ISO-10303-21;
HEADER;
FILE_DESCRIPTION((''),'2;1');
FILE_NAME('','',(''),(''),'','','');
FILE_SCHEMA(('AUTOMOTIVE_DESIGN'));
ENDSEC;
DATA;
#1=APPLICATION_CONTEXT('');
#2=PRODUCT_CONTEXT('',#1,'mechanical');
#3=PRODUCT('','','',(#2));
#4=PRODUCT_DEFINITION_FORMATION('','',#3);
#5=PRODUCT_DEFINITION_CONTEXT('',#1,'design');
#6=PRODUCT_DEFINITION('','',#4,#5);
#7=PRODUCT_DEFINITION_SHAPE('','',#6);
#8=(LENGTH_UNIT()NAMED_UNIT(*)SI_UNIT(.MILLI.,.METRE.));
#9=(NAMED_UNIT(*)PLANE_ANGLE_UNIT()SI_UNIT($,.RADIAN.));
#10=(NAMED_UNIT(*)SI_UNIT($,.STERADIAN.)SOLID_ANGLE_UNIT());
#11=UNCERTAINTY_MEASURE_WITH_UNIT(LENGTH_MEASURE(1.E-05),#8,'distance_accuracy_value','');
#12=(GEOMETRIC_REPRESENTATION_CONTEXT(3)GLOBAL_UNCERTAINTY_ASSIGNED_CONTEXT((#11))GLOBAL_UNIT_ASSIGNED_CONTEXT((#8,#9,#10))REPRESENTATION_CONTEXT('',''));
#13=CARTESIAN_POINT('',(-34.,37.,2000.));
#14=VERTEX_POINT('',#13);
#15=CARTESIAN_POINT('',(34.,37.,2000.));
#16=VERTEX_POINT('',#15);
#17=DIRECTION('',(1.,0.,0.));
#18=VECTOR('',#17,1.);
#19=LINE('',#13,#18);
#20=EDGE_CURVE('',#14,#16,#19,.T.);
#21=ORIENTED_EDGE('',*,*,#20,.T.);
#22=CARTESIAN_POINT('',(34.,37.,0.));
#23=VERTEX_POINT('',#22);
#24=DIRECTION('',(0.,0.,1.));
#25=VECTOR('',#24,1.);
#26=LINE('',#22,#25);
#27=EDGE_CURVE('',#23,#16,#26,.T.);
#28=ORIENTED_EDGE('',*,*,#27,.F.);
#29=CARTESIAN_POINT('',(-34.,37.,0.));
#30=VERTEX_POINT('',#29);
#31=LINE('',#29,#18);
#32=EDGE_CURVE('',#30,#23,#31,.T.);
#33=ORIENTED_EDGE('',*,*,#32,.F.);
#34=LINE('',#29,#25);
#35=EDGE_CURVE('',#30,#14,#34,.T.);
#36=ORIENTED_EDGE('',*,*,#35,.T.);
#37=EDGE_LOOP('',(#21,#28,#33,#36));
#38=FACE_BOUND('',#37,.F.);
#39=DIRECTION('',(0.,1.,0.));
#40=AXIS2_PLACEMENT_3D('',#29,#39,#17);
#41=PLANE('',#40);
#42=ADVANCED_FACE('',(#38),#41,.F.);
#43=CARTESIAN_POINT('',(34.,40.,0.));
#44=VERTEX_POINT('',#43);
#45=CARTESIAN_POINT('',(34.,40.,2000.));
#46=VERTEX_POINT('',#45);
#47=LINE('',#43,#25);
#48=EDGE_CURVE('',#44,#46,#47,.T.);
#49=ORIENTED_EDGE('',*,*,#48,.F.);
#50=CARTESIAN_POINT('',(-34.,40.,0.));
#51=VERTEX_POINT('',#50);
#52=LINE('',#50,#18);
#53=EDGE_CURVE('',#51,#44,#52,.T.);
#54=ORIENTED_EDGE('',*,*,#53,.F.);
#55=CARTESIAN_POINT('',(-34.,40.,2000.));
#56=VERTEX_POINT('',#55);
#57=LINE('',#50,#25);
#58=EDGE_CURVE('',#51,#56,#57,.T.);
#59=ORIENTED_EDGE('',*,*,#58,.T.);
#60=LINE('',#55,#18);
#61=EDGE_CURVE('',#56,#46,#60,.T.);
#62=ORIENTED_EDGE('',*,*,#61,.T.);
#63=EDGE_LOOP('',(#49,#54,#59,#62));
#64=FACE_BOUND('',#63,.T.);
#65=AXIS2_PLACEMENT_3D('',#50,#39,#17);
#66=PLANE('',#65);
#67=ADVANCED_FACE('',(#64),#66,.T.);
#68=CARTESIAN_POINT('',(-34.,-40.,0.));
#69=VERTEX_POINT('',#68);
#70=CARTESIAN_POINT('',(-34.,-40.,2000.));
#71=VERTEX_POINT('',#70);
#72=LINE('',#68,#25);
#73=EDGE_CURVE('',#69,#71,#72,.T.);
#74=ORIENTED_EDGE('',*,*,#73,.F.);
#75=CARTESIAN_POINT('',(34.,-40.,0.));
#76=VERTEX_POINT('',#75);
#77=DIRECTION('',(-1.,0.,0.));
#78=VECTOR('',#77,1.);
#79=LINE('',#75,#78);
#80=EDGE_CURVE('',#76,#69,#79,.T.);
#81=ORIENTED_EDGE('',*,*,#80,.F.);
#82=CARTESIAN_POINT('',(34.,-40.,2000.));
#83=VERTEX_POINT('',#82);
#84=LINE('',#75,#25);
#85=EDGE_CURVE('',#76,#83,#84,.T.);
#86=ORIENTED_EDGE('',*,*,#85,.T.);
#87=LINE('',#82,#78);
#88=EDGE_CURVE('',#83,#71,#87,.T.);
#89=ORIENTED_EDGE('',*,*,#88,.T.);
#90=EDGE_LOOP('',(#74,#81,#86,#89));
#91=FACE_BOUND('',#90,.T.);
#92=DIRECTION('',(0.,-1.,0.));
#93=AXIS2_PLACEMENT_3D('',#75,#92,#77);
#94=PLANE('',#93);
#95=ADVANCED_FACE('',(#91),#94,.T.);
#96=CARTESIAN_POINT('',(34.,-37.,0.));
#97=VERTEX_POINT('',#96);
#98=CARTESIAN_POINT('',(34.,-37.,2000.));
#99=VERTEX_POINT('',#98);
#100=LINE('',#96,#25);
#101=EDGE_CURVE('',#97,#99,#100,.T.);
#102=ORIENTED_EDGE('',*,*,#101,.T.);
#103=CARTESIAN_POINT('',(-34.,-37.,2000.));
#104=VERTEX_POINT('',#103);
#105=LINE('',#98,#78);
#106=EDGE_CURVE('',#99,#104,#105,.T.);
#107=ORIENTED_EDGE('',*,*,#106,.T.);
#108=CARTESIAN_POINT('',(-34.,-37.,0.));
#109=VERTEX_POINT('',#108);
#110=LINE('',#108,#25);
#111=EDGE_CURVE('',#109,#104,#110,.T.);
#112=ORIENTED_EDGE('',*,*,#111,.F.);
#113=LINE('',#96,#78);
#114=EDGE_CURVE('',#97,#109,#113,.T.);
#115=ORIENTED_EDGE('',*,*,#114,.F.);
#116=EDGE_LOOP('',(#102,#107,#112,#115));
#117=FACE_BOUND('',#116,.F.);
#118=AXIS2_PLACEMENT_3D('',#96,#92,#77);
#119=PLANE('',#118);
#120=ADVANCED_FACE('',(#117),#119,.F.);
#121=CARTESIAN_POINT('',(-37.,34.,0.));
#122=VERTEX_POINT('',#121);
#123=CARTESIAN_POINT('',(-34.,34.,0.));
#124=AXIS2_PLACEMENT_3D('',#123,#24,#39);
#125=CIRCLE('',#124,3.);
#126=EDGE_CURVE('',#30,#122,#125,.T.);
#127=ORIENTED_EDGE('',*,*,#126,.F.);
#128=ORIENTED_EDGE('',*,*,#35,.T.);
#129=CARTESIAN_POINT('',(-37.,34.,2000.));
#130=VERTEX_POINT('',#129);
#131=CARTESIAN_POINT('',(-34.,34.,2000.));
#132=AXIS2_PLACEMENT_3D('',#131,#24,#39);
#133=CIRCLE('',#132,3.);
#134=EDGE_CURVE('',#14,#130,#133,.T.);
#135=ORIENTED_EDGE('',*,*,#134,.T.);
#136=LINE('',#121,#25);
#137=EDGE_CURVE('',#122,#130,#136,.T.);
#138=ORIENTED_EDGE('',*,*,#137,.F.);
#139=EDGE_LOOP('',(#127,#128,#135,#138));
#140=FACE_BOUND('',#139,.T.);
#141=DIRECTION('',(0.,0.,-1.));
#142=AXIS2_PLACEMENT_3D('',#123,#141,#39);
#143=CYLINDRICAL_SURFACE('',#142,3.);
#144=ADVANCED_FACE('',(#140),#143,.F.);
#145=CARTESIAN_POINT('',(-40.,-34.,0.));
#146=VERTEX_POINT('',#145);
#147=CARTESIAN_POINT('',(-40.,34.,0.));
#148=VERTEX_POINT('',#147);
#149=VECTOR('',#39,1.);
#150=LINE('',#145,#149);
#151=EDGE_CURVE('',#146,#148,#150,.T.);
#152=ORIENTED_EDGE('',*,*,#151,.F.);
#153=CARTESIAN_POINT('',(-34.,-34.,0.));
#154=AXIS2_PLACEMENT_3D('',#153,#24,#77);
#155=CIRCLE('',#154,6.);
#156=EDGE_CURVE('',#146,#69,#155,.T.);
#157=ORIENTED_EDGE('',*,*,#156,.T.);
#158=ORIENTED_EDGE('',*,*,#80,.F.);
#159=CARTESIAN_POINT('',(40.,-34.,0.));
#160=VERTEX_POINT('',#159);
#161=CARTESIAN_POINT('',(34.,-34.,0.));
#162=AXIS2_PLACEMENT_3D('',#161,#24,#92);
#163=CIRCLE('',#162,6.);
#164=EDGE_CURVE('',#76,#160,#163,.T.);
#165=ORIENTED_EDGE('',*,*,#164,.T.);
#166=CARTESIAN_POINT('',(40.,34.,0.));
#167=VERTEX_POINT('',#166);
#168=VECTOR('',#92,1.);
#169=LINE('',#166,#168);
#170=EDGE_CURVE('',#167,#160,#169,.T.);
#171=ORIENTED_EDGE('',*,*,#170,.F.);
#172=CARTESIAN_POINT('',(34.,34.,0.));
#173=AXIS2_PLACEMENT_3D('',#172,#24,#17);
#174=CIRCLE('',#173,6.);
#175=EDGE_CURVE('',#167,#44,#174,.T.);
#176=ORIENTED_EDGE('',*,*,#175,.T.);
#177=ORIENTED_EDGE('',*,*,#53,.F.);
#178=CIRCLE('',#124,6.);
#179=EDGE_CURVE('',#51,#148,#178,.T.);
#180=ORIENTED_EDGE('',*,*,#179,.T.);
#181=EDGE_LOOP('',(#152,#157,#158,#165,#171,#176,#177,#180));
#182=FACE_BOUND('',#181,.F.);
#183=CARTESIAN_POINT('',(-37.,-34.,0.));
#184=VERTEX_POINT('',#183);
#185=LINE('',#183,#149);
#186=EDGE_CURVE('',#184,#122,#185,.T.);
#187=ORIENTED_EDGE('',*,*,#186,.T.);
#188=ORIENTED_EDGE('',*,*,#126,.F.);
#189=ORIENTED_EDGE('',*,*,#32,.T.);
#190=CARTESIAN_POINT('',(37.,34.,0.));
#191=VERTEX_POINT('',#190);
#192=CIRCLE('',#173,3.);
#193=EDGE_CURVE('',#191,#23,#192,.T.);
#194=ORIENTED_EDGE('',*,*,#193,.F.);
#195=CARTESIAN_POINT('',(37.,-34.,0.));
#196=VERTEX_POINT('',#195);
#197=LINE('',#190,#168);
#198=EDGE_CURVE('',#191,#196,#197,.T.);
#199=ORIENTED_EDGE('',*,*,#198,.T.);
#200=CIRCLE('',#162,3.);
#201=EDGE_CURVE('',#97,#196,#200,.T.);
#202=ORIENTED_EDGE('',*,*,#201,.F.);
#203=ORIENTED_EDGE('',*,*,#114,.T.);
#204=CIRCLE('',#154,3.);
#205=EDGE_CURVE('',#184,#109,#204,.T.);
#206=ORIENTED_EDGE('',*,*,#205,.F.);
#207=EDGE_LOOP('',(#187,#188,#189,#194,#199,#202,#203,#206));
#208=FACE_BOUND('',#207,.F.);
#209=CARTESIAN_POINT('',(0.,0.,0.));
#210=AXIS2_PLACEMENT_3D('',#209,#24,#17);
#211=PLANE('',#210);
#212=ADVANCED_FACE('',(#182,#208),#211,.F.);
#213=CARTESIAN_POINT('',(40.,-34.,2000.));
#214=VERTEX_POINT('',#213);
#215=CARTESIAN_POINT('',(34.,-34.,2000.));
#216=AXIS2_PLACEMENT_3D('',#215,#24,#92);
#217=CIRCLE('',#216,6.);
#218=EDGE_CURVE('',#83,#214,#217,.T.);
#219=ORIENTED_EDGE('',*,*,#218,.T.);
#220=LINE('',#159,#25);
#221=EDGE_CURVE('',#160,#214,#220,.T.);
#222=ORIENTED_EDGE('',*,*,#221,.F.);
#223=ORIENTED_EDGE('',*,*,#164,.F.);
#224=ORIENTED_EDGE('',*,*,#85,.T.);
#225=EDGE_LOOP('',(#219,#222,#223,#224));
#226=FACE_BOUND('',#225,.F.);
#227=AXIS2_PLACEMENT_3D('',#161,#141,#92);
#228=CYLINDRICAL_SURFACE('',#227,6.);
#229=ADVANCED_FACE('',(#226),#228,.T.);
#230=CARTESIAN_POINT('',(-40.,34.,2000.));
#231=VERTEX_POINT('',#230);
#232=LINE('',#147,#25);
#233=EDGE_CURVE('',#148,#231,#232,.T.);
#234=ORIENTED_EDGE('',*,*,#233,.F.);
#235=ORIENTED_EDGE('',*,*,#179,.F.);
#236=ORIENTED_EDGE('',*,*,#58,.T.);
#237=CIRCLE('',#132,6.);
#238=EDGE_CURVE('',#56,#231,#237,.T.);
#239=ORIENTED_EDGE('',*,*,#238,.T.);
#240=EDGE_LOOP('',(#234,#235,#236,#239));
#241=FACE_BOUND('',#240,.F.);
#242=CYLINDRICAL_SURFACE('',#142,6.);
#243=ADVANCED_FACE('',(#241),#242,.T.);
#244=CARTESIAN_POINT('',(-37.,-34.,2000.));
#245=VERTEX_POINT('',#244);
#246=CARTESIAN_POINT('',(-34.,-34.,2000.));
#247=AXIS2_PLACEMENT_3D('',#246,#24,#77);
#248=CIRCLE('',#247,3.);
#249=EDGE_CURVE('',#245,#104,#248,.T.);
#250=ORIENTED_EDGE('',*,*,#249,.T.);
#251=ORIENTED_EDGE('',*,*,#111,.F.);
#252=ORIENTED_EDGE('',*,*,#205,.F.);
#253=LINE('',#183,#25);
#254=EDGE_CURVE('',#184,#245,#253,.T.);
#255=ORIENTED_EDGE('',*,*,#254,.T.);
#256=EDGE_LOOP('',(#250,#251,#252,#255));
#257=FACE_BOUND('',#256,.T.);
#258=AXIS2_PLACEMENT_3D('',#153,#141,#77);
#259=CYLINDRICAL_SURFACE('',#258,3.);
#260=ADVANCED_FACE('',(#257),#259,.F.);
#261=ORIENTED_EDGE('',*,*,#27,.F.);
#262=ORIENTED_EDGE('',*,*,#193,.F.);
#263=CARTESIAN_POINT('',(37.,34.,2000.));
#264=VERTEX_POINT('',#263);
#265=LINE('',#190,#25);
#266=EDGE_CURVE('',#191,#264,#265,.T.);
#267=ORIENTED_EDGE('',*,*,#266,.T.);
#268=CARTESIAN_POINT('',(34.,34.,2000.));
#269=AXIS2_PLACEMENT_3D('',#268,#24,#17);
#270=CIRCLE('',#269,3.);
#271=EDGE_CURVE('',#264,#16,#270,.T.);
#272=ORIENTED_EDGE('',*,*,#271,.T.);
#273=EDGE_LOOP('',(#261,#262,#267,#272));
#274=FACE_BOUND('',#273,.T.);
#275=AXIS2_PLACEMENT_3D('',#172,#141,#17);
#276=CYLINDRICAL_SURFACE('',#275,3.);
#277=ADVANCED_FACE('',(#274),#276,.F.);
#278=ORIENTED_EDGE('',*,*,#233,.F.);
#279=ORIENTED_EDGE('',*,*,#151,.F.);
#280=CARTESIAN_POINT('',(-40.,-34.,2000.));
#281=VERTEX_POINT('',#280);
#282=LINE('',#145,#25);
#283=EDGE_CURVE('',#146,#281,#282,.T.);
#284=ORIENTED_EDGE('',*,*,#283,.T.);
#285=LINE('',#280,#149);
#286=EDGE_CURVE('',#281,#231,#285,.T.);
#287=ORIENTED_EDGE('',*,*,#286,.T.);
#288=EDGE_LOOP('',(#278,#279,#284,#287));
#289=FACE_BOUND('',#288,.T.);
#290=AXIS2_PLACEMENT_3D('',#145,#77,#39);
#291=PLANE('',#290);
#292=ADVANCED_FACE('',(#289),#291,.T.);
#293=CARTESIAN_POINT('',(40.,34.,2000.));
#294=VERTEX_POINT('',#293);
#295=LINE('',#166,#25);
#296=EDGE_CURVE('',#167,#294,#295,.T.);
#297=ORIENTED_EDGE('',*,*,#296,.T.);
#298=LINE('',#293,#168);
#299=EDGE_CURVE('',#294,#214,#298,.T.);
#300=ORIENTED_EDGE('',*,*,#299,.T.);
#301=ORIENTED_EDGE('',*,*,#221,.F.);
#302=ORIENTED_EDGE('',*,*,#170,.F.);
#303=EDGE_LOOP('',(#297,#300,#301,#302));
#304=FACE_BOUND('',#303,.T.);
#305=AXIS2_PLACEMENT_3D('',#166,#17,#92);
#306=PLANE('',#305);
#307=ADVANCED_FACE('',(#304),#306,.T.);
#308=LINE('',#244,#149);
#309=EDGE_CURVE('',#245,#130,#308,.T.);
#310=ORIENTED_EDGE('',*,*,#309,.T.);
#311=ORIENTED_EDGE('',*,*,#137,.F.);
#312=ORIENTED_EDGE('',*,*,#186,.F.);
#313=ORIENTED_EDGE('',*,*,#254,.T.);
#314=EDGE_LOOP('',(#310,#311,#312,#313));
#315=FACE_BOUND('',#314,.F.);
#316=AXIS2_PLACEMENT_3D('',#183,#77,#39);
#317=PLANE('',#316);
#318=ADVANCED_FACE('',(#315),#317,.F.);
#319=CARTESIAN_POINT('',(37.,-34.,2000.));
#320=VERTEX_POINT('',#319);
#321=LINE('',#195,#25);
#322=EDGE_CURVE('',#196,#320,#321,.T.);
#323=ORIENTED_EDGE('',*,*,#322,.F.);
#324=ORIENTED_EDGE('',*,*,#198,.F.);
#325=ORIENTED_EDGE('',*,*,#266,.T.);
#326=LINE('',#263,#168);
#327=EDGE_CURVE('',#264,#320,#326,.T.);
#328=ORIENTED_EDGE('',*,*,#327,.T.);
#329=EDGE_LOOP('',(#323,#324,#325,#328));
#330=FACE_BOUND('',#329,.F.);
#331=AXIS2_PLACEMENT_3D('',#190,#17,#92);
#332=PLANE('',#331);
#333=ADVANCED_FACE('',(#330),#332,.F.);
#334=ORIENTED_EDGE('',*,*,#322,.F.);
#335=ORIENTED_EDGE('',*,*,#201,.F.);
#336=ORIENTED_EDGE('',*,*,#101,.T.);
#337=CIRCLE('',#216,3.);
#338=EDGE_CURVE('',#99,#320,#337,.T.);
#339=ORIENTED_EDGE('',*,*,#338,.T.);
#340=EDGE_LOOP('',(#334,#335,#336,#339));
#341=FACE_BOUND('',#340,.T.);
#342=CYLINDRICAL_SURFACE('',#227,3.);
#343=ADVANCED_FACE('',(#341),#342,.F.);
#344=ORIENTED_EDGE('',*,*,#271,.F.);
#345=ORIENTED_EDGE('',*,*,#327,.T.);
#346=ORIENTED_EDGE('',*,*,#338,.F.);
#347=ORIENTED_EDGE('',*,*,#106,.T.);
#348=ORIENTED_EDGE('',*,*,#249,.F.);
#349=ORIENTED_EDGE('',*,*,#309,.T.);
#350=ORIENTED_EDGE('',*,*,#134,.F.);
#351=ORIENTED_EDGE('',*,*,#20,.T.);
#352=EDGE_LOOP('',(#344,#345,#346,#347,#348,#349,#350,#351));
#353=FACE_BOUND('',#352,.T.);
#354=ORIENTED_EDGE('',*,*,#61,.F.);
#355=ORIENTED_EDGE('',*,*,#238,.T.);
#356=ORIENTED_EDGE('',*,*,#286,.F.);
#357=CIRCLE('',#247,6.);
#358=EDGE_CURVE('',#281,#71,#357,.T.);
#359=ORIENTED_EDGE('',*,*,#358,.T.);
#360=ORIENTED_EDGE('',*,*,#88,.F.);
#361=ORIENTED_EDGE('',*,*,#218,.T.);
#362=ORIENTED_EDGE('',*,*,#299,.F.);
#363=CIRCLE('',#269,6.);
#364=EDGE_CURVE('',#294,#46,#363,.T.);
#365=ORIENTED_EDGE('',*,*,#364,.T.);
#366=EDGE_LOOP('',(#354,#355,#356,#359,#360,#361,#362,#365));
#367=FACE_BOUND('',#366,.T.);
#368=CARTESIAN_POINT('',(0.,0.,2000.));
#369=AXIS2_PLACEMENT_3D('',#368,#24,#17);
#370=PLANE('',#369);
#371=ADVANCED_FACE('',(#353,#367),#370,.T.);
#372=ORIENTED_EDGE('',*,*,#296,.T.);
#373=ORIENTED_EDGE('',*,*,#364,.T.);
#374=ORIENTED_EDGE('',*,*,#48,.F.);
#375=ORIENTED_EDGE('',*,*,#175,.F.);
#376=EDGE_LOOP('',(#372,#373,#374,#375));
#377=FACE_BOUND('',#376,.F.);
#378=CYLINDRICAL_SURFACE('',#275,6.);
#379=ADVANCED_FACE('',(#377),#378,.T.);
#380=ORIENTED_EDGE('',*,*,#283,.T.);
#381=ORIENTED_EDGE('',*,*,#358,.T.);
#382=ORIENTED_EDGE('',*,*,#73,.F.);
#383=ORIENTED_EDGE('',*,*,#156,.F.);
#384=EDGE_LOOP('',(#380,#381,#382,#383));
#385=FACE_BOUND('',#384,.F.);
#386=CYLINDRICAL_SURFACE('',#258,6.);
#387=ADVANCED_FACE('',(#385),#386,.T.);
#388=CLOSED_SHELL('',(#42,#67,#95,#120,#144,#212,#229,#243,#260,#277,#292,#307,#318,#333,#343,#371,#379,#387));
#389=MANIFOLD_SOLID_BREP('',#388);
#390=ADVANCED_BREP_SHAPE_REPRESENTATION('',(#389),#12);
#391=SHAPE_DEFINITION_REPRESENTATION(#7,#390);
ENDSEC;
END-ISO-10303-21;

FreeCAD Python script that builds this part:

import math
import FreeCAD as App
import Part
import Sketcher

doc = App.newDocument("Part")
body = doc.addObject("PartDesign::Body", "Body")

# Sketch on XY plane
sketch1 = body.newObject("Sketcher::SketchObject", "Sketch")
sketch1.AttachmentSupport = (doc.getObject("XY_Plane"), [""])
sketch1.MapMode = "FlatFace"
sketch1.addGeometry([
    Part.LineSegment(App.Vector(-40, 34, 0), App.Vector(-40, -34, 0)),  # 0
    Part.ArcOfCircle(Part.Circle(App.Vector(-34, -34, 0), App.Vector(0, 0, 1), 6), math.radians(180), math.radians(270)),  # 1
    Part.LineSegment(App.Vector(-34, -40, 0), App.Vector(34, -40, 0)),  # 2
    Part.ArcOfCircle(Part.Circle(App.Vector(34, -34, 0), App.Vector(0, 0, 1), 6), math.radians(-90), math.radians(0)),  # 3
    Part.LineSegment(App.Vector(40, -34, 0), App.Vector(40, 34, 0)),  # 4
    Part.ArcOfCircle(Part.Circle(App.Vector(34, 34, 0), App.Vector(0, 0, 1), 6), math.radians(0), math.radians(90)),  # 5
    Part.LineSegment(App.Vector(34, 40, 0), App.Vector(-34, 40, 0)),  # 6
    Part.ArcOfCircle(Part.Circle(App.Vector(-34, 34, 0), App.Vector(0, 0, 1), 6), math.radians(90), math.radians(180)),  # 7
    Part.ArcOfCircle(Part.Circle(App.Vector(-34, 34, 0), App.Vector(0, 0, 1), 3), math.radians(90), math.radians(180)),  # 8
    Part.LineSegment(App.Vector(-34, 37, 0), App.Vector(34, 37, 0)),  # 9
    Part.ArcOfCircle(Part.Circle(App.Vector(34, 34, 0), App.Vector(0, 0, 1), 3), math.radians(0), math.radians(90)),  # 10
    Part.LineSegment(App.Vector(37, 34, 0), App.Vector(37, -34, 0)),  # 11
    Part.ArcOfCircle(Part.Circle(App.Vector(34, -34, 0), App.Vector(0, 0, 1), 3), math.radians(-90), math.radians(0)),  # 12
    Part.LineSegment(App.Vector(34, -37, 0), App.Vector(-34, -37, 0)),  # 13
    Part.ArcOfCircle(Part.Circle(App.Vector(-34, -34, 0), App.Vector(0, 0, 1), 3), math.radians(180), math.radians(270)),  # 14
    Part.LineSegment(App.Vector(-37, -34, 0), App.Vector(-37, 34, 0)),  # 15
], False)
sketch1.addConstraint([
    Sketcher.Constraint("Tangent", 0, 2, 1, 1),
    Sketcher.Constraint("Tangent", 1, 2, 2, 1),
    Sketcher.Constraint("Tangent", 2, 2, 3, 1),
    Sketcher.Constraint("Tangent", 3, 2, 4, 1),
    Sketcher.Constraint("Tangent", 4, 2, 5, 1),
    Sketcher.Constraint("Tangent", 5, 2, 6, 1),
    Sketcher.Constraint("Tangent", 6, 2, 7, 1),
    Sketcher.Constraint("Tangent", 7, 2, 0, 1),
    Sketcher.Constraint("Tangent", 8, 1, 9, 1),
    Sketcher.Constraint("Tangent", 9, 2, 10, 2),
    Sketcher.Constraint("Tangent", 10, 1, 11, 1),
    Sketcher.Constraint("Tangent", 11, 2, 12, 2),
    Sketcher.Constraint("Tangent", 12, 1, 13, 1),
    Sketcher.Constraint("Tangent", 13, 2, 14, 2),
    Sketcher.Constraint("Tangent", 14, 1, 15, 1),
    Sketcher.Constraint("Tangent", 15, 2, 8, 2),
    Sketcher.Constraint("Vertical", 0),
    Sketcher.Constraint("Horizontal", 2),
    Sketcher.Constraint("Vertical", 4),
    Sketcher.Constraint("Horizontal", 6),
    Sketcher.Constraint("Horizontal", 9),
    Sketcher.Constraint("Vertical", 11),
    Sketcher.Constraint("Horizontal", 13),
    Sketcher.Constraint("Vertical", 15),
    Sketcher.Constraint("Coincident", 8, 3, 7, 3),
    Sketcher.Constraint("Coincident", 10, 3, 5, 3),
    Sketcher.Constraint("Coincident", 12, 3, 3, 3),
    Sketcher.Constraint("Equal", 1, 3),
    Sketcher.Constraint("Equal", 3, 5),
    Sketcher.Constraint("Equal", 5, 7),
    Sketcher.Constraint("Equal", 12, 14),
    Sketcher.Constraint("Symmetric", 1, 3, 5, 3, -1, 1),
    Sketcher.Constraint("Equal", 13, 0),
    Sketcher.Constraint("Radius", 1, 6.0),
    Sketcher.Constraint("Radius", 8, 3.0),
    Sketcher.Constraint("DistanceX", 0, 2, -1, 1, 40.0),
])
pad1 = body.newObject("PartDesign::Pad", "Pad")
pad1.Profile = sketch1
pad1.Length = 2000

doc.recompute()
